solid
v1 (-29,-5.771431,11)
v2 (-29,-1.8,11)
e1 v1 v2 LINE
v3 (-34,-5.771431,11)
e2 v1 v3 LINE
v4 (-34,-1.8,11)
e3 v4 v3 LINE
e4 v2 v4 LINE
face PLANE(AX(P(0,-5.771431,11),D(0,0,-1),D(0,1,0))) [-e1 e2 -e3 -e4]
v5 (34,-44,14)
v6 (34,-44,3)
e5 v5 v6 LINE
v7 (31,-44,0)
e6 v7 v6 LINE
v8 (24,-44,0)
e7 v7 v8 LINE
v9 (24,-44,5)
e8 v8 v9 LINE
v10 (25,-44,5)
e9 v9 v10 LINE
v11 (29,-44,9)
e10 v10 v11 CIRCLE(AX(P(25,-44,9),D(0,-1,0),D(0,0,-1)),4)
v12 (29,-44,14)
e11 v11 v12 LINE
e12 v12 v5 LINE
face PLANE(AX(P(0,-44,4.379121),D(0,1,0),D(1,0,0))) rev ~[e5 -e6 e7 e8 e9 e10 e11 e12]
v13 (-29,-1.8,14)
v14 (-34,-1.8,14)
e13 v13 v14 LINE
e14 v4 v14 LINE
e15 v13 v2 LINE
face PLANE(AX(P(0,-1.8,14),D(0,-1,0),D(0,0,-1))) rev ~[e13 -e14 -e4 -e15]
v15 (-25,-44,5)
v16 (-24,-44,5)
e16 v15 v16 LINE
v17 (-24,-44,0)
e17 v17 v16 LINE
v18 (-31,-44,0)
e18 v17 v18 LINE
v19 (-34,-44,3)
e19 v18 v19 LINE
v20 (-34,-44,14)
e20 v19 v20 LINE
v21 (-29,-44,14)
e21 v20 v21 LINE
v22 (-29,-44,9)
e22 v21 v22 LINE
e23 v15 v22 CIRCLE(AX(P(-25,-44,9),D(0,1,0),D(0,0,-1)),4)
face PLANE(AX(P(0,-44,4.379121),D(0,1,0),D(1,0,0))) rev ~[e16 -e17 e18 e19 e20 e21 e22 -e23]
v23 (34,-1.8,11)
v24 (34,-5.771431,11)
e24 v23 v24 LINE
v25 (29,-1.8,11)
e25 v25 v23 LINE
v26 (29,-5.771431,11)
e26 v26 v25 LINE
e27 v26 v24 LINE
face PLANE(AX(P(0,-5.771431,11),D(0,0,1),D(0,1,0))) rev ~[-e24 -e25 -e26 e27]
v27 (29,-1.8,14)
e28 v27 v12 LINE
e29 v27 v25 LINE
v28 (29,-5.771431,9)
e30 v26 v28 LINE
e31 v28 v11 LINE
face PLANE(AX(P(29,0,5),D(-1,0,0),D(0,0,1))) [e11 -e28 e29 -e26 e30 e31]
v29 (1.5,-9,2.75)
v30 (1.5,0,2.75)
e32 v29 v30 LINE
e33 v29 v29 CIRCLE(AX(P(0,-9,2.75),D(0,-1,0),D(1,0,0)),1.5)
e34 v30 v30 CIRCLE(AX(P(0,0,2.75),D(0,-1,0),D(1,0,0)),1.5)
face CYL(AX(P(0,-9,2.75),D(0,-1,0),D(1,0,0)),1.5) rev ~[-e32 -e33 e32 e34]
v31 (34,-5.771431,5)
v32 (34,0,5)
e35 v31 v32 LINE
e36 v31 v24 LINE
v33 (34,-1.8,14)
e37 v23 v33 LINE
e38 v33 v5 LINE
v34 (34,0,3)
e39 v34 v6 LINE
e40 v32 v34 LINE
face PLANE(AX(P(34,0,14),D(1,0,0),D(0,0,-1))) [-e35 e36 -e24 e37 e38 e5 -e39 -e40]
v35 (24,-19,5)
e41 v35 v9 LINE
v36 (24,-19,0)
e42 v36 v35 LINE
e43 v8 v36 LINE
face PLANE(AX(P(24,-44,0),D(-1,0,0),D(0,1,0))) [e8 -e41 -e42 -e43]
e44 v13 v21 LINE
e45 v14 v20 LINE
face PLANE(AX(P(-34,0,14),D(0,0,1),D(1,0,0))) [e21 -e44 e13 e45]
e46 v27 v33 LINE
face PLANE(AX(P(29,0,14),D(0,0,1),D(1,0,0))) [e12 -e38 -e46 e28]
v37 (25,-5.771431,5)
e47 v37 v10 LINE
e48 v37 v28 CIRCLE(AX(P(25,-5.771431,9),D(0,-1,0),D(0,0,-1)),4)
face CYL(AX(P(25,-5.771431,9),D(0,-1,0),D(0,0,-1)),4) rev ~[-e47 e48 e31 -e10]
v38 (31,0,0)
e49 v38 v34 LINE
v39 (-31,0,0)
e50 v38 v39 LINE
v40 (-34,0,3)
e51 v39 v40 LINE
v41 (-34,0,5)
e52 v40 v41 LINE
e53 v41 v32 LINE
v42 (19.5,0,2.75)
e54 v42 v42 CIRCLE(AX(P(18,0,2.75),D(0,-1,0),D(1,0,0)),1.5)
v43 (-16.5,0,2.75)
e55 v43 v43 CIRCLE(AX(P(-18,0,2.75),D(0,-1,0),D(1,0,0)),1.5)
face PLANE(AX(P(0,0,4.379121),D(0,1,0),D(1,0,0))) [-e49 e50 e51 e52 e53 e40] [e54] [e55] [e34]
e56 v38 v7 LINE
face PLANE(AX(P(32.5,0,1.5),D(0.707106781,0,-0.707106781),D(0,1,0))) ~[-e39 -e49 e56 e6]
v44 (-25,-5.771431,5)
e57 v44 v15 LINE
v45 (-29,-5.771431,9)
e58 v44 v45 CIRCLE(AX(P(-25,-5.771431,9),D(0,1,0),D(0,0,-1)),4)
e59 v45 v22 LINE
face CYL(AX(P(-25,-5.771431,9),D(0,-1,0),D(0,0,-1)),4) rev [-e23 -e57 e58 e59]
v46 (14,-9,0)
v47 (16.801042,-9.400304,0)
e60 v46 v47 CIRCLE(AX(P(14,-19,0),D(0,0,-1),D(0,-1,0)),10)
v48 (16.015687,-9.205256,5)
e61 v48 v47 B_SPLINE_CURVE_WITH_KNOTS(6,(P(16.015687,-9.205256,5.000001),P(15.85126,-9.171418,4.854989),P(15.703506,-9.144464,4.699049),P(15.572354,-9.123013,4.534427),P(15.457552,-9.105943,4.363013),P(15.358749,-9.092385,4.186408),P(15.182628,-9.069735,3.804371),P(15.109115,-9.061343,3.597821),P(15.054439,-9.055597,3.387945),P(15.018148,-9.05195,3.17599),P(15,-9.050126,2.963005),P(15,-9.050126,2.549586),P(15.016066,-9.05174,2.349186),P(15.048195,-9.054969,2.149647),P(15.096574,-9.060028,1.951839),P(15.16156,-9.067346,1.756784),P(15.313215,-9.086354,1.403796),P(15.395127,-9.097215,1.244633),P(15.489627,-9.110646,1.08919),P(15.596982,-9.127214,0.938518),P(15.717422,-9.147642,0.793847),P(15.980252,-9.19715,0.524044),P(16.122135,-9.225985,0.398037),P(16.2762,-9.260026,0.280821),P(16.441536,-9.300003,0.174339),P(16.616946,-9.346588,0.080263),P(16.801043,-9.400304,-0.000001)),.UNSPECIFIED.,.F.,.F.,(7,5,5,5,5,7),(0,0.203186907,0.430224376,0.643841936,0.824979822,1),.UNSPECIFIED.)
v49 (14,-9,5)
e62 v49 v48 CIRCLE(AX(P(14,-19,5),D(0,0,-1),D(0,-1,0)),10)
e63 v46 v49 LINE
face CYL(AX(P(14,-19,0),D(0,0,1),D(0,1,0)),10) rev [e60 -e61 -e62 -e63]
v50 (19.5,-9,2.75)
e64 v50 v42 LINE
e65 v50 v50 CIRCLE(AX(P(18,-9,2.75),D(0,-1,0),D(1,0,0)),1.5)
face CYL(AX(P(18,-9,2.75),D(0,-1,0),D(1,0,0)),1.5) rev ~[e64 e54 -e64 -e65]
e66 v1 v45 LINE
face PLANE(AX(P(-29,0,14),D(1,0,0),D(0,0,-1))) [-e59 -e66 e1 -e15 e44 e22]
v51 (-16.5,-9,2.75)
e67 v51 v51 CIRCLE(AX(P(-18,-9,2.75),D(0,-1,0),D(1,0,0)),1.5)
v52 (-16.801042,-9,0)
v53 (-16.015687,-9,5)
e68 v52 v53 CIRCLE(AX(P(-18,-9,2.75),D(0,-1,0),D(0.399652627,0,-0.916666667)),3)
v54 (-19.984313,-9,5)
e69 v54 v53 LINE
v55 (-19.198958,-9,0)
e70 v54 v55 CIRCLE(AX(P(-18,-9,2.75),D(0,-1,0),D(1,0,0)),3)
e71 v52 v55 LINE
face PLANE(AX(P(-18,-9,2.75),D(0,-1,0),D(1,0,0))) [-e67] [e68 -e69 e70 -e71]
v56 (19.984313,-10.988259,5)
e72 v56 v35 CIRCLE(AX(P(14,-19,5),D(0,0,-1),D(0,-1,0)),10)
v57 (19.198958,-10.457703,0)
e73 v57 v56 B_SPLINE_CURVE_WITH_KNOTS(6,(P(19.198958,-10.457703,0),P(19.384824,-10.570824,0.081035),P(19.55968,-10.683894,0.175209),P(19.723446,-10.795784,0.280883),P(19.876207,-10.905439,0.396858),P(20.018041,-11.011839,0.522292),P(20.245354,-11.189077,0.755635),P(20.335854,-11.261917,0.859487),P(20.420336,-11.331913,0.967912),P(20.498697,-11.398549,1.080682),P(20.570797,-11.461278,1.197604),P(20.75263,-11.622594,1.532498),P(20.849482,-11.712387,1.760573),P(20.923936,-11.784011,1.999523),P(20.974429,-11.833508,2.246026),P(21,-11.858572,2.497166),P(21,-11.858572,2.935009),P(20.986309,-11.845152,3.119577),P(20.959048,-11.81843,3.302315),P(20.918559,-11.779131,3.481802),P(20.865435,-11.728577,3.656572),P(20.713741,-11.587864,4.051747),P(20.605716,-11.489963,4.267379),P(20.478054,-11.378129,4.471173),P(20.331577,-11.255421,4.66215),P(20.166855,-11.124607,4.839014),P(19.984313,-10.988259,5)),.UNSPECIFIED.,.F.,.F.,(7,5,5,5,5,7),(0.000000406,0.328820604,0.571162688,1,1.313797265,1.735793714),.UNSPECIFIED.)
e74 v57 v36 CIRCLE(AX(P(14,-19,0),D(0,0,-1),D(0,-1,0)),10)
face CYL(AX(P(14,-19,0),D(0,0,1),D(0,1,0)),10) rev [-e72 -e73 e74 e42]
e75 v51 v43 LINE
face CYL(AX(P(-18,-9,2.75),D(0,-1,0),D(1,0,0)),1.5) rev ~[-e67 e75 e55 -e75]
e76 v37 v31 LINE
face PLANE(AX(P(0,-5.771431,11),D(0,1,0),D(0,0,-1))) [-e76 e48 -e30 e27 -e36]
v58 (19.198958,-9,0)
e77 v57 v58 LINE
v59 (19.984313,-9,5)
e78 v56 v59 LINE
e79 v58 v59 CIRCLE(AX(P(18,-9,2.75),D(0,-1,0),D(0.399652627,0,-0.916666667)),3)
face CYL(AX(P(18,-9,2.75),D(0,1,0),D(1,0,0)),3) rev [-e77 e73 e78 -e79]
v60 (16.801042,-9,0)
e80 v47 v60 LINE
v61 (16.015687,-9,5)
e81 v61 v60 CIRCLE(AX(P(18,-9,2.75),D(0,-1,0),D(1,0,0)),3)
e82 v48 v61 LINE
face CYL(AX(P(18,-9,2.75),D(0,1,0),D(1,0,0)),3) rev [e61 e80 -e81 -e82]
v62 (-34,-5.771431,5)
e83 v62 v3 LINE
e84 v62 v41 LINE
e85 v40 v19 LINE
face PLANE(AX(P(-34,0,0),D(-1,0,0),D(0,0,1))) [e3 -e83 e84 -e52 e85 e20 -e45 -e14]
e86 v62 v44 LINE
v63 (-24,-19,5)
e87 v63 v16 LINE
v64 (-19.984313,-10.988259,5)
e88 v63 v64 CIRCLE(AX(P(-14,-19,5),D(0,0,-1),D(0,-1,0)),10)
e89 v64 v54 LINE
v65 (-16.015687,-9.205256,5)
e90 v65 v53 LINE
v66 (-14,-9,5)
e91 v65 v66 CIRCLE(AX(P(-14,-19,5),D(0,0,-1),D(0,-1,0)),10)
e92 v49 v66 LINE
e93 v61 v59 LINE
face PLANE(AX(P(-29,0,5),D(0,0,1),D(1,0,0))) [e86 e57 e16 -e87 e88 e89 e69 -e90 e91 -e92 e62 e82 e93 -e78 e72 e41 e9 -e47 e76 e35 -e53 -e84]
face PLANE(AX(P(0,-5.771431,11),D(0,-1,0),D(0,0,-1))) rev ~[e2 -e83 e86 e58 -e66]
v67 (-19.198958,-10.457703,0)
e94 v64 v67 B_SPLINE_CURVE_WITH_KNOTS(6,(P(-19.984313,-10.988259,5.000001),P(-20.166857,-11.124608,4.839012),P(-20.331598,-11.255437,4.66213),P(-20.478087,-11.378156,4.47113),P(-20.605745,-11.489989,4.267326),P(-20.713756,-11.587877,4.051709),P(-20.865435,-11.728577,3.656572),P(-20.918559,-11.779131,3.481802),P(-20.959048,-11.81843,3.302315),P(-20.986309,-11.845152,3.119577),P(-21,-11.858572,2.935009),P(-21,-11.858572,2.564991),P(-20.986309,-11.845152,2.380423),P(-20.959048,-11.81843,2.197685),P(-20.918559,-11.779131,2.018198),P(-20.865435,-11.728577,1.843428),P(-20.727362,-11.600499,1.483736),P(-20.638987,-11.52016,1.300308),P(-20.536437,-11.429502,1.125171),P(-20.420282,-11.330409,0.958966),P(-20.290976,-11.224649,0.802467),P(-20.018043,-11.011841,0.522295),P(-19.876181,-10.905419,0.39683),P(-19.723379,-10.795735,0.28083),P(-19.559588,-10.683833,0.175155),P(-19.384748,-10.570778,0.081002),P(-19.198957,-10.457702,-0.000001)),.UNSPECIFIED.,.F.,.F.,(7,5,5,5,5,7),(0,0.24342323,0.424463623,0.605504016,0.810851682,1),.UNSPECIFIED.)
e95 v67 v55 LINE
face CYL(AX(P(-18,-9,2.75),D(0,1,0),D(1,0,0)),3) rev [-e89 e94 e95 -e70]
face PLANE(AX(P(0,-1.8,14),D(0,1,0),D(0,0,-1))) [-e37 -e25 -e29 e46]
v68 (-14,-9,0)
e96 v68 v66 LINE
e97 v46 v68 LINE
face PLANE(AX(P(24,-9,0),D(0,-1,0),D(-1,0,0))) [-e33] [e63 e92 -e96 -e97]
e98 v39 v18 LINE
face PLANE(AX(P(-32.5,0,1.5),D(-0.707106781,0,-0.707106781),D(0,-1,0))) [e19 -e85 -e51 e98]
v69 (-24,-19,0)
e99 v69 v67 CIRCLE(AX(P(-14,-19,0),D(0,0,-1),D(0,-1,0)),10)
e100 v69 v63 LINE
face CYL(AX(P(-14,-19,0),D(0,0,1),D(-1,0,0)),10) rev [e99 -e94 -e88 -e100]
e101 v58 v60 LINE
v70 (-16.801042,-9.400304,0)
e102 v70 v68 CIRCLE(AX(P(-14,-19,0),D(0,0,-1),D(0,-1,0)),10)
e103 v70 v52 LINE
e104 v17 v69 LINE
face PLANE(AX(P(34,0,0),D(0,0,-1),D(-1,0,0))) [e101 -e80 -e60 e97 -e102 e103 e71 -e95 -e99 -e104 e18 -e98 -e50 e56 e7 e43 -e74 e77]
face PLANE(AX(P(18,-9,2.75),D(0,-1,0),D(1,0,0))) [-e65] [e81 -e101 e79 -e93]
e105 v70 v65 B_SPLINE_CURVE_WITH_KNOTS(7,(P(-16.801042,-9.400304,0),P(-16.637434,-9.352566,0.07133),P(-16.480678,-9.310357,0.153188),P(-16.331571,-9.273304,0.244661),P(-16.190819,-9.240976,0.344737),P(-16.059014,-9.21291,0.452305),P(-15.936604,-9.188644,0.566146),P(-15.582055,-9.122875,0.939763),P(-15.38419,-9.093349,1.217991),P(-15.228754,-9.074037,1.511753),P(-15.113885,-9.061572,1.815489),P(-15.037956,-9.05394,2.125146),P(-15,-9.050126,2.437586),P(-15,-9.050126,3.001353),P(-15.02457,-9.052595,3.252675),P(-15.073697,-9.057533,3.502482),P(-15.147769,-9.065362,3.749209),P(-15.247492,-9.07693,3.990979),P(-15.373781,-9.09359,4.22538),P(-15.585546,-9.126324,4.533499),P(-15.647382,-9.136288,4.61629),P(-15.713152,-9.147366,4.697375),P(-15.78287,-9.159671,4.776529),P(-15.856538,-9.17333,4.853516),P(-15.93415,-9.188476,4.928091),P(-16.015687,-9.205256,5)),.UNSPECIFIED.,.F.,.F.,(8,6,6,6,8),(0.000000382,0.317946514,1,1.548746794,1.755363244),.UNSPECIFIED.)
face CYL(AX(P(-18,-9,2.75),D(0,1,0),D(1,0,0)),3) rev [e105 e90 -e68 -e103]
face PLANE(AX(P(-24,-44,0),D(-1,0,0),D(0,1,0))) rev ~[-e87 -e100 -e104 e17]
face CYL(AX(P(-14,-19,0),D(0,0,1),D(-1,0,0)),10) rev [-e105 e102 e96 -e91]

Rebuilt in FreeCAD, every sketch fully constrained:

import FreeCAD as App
import Part
import Sketcher

V = App.Vector


def edges_at(feature, points):
    """Names of the edges that pass closest to the given points."""
    edges = feature.Shape.Edges
    near = lambda p: min(range(len(edges)), key=lambda i: edges[i].distToShape(Part.Vertex(*p))[0])
    return sorted({f"Edge{near(p) + 1}" for p in points})


def add_polygon(sketch, points):
    """Adds a closed chain of lines whose ends are joined by coincident constraints."""
    first, n = sketch.GeometryCount, len(points)
    for a, b in zip(points, points[1:] + points[:1]):
        sketch.addGeometry(Part.LineSegment(App.Vector(*a, 0), App.Vector(*b, 0)), False)
    for i in range(n):
        sketch.addConstraint(Sketcher.Constraint("Coincident", first + i, 2, first + (i + 1) % n, 1))

doc = App.newDocument("Part")
body = doc.addObject("PartDesign::Body", "Body")

sketch1 = body.newObject("Sketcher::SketchObject", "Sketch")
sketch1.AttachmentSupport = (doc.getObject("XZ_Plane"), [""])
sketch1.MapMode = "FlatFace"
add_polygon(sketch1, [(34, 0), (-34, 0), (-34, 14), (-29, 14), (-29, 5), (29, 5), (29, 14), (34, 14)])
sketch1.addConstraint(Sketcher.Constraint("Horizontal", 0))
sketch1.addConstraint(Sketcher.Constraint("Vertical", 1))
sketch1.addConstraint(Sketcher.Constraint("Horizontal", 2))
sketch1.addConstraint(Sketcher.Constraint("Vertical", 3))
sketch1.addConstraint(Sketcher.Constraint("Horizontal", 4))
sketch1.addConstraint(Sketcher.Constraint("Vertical", 5))
sketch1.addConstraint(Sketcher.Constraint("Horizontal", 6))
sketch1.addConstraint(Sketcher.Constraint("Vertical", 7))
sketch1.addConstraint(Sketcher.Constraint("Symmetric", 0, 2, 7, 2, -1, 1))
sketch1.addConstraint(Sketcher.Constraint("Symmetric", 2, 2, 5, 2, -2))
sketch1.addConstraint(Sketcher.Constraint("DistanceX", 0, 2, 0, 1, 68.0))
sketch1.addConstraint(Sketcher.Constraint("DistanceX", 2, 1, 2, 2, 5.0))
sketch1.addConstraint(Sketcher.Constraint("DistanceY", 1, 1, 1, 2, 14.0))
sketch1.addConstraint(Sketcher.Constraint("DistanceY", 3, 2, 3, 1, 9.0))
pad1 = body.newObject("PartDesign::Pad", "Pad")
pad1.Profile = sketch1
pad1.Length = 44

sketch2 = body.newObject("Sketcher::SketchObject", "Sketch001")
sketch2.AttachmentSupport = (doc.getObject("XY_Plane"), [""])
sketch2.MapMode = "FlatFace"
add_polygon(sketch2, [(24, -9), (24, -44), (-24, -44), (-24, -9)])
sketch2.addConstraint(Sketcher.Constraint("Vertical", 0))
sketch2.addConstraint(Sketcher.Constraint("Horizontal", 1))
sketch2.addConstraint(Sketcher.Constraint("Vertical", 2))
sketch2.addConstraint(Sketcher.Constraint("Horizontal", 3))
sketch2.addConstraint(Sketcher.Constraint("DistanceX", 1, 2, 1, 1, 48.0))
sketch2.addConstraint(Sketcher.Constraint("DistanceY", 0, 2, 0, 1, 35.0))
sketch2.addConstraint(Sketcher.Constraint("DistanceX", -1, 1, 0, 2, 24.0))
sketch2.addConstraint(Sketcher.Constraint("DistanceY", 0, 2, -1, 1, 44.0))
pocket1 = body.newObject("PartDesign::Pocket", "Pocket")
pocket1.Profile = sketch2
pocket1.Type = "ThroughAll"
pocket1.Reversed = True
doc.recompute()

fillet = body.newObject("PartDesign::Fillet", "Fillet")
fillet.Base = (pocket1, edges_at(pocket1, [(-24, -9, 2.5), (24, -9, 2.5)]))
fillet.Radius = 10

sketch3 = body.newObject("Sketcher::SketchObject", "Sketch002")
sketch3.AttachmentSupport = (doc.getObject("XZ_Plane"), [""])
sketch3.MapMode = "FlatFace"
sketch3.AttachmentOffset = App.Placement(V(0, 0, 9), App.Rotation())
sketch3.addGeometry(Part.Circle(V(0, 2.8, 0), V(0, 0, 1), 1.5), False)
sketch3.addGeometry(Part.Circle(V(-18, 2.8, 0), V(0, 0, 1), 1.5), False)
sketch3.addGeometry(Part.Circle(V(18, 2.8, 0), V(0, 0, 1), 1.5), False)
sketch3.addConstraint(Sketcher.Constraint("Equal", 0, 1))
sketch3.addConstraint(Sketcher.Constraint("Equal", 1, 2))
sketch3.addConstraint(Sketcher.Constraint("Symmetric", 1, 3, 2, 3, -2))
sketch3.addConstraint(Sketcher.Constraint("PointOnObject", 0, 3, -2))
sketch3.addConstraint(Sketcher.Constraint("Horizontal", 0, 3, 1, 3))
sketch3.addConstraint(Sketcher.Constraint("Diameter", 0, 3.0))
sketch3.addConstraint(Sketcher.Constraint("DistanceX", 1, 3, -1, 1, 18.0))
sketch3.addConstraint(Sketcher.Constraint("DistanceY", -1, 1, 0, 3, 2.75))
pocket2 = body.newObject("PartDesign::Pocket", "Pocket001")
pocket2.Profile = sketch3
pocket2.Type = "ThroughAll"
pocket2.Midplane = True
doc.recompute()

chamfer = body.newObject("PartDesign::Chamfer", "Chamfer")
chamfer.Base = (pocket2, edges_at(pocket2, [(-34, -22, 0), (34, -22, 0)]))
chamfer.Size = 3

sketch4 = body.newObject("Sketcher::SketchObject", "Sketch003")
sketch4.AttachmentSupport = (doc.getObject("YZ_Plane"), [""])
sketch4.MapMode = "FlatFace"
add_polygon(sketch4, [(0, 14), (-1.8, 14), (-1.8, 5), (0, 5)])
sketch4.addConstraint(Sketcher.Constraint("Horizontal", 0))
sketch4.addConstraint(Sketcher.Constraint("Vertical", 1))
sketch4.addConstraint(Sketcher.Constraint("Horizontal", 2))
sketch4.addConstraint(Sketcher.Constraint("Vertical", 3))
sketch4.addConstraint(Sketcher.Constraint("PointOnObject", 2, 2, -2))
sketch4.addConstraint(Sketcher.Constraint("DistanceY", 1, 2, 1, 1, 9.0))
sketch4.addConstraint(Sketcher.Constraint("DistanceX", 0, 2, 0, 1, 1.8))
sketch4.addConstraint(Sketcher.Constraint("DistanceY", -1, 1, 0, 2, 14.0))
pocket3 = body.newObject("PartDesign::Pocket", "Pocket002")
pocket3.Profile = sketch4
pocket3.Type = "ThroughAll"
pocket3.Midplane = True

sketch5 = body.newObject("Sketcher::SketchObject", "Sketch004")
sketch5.AttachmentSupport = (doc.getObject("YZ_Plane"), [""])
sketch5.MapMode = "FlatFace"
add_polygon(sketch5, [(-1.8, 11), (-5.8, 11), (-5.8, 5), (-1.8, 5)])
sketch5.addConstraint(Sketcher.Constraint("Horizontal", 0))
sketch5.addConstraint(Sketcher.Constraint("Vertical", 1))
sketch5.addConstraint(Sketcher.Constraint("Horizontal", 2))
sketch5.addConstraint(Sketcher.Constraint("Vertical", 3))
sketch5.addConstraint(Sketcher.Constraint("DistanceY", 1, 2, 1, 1, 6.0))
sketch5.addConstraint(Sketcher.Constraint("DistanceY", -1, 1, 0, 2, 11.0))
sketch5.addConstraint(Sketcher.Constraint("DistanceX", 2, 2, -1, 1, 1.8))
sketch5.addConstraint(Sketcher.Constraint("DistanceX", 0, 2, 0, 1, 3.971431))
pocket4 = body.newObject("PartDesign::Pocket", "Pocket003")
pocket4.Profile = sketch5
pocket4.Type = "ThroughAll"
pocket4.Midplane = True

sketch6 = body.newObject("Sketcher::SketchObject", "Sketch005")
sketch6.AttachmentSupport = (doc.getObject("XZ_Plane"), [""])
sketch6.MapMode = "FlatFace"
sketch6.AttachmentOffset = App.Placement(V(0, 0, 9), App.Rotation())
sketch6.addGeometry(Part.Circle(V(0, 2.8, 0), V(0, 0, 1), 3), False)
sketch6.addGeometry(Part.Circle(V(18, 2.8, 0), V(0, 0, 1), 3), False)
sketch6.addGeometry(Part.Circle(V(-18, 2.8, 0), V(0, 0, 1), 3), False)
sketch6.addConstraint(Sketcher.Constraint("Equal", 0, 1))
sketch6.addConstraint(Sketcher.Constraint("Equal", 1, 2))
sketch6.addConstraint(Sketcher.Constraint("Symmetric", 1, 3, 2, 3, -2))
sketch6.addConstraint(Sketcher.Constraint("PointOnObject", 0, 3, -2))
sketch6.addConstraint(Sketcher.Constraint("Horizontal", 0, 3, 1, 3))
sketch6.addConstraint(Sketcher.Constraint("Diameter", 0, 6.0))
sketch6.addConstraint(Sketcher.Constraint("DistanceX", -1, 1, 1, 3, 18.0))
sketch6.addConstraint(Sketcher.Constraint("DistanceY", -1, 1, 0, 3, 2.75))
pocket5 = body.newObject("PartDesign::Pocket", "Pocket004")
pocket5.Profile = sketch6
pocket5.Length = 11
pocket5.Reversed = True
doc.recompute()

fillet2 = body.newObject("PartDesign::Fillet", "Fillet001")
fillet2.Base = (pocket5, edges_at(pocket5, [(29, -24.886, 5), (-29, -24.886, 5)]))
fillet2.Radius = 4

doc.recompute()
